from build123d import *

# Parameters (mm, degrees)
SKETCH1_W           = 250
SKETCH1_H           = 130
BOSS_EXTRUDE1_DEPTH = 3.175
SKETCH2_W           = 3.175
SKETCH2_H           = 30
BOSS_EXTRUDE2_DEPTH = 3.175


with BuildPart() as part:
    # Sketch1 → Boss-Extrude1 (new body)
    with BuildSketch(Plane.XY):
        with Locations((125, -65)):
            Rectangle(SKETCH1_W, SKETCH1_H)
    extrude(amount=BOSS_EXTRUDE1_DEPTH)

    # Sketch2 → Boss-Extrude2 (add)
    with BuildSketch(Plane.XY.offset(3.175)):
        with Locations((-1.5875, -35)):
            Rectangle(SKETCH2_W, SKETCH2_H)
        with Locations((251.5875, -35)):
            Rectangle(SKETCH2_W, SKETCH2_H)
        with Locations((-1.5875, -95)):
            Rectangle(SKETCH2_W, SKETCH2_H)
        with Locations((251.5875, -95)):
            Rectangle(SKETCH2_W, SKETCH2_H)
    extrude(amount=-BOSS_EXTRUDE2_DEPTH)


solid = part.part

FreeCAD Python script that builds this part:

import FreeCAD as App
import Part
import Sketcher
Q = App.Units.Quantity

doc = App.newDocument("Part")
params = doc.addObject("Spreadsheet::Sheet", "Params")
for row, (alias, value) in enumerate([
    ("sketch1_width", "250 mm"),
    ("sketch1_height", "130 mm"),
    ("pad1_length", "3.175 mm"),
    ("sketch2_height", "30 mm"),
    ("pad2_length", "3.175 mm"),
], start=1):
    params.set(f"A{row}", alias)
    params.set(f"B{row}", "=" + value)
    params.setAlias(f"B{row}", alias)

body = doc.addObject("PartDesign::Body", "Body")

sketch1 = body.newObject("Sketcher::SketchObject", "Sketch")
sketch1.AttachmentSupport = (doc.getObject("XY_Plane"), [""])
sketch1.MapMode = "FlatFace"
sketch1.addGeometry([
    Part.LineSegment(App.Vector(0, 0, 0), App.Vector(0, -130, 0)),
    Part.LineSegment(App.Vector(0, -130, 0), App.Vector(250, -130, 0)),
    Part.LineSegment(App.Vector(250, -130, 0), App.Vector(250, 0, 0)),
    Part.LineSegment(App.Vector(250, 0, 0), App.Vector(0, 0, 0)),
], False)
sketch1.addConstraint([
    Sketcher.Constraint("Coincident", 0, 2, 1, 1),
    Sketcher.Constraint("Coincident", 1, 2, 2, 1),
    Sketcher.Constraint("Coincident", 2, 2, 3, 1),
    Sketcher.Constraint("Coincident", 3, 2, 0, 1),
    Sketcher.Constraint("Vertical", 0),
    Sketcher.Constraint("Horizontal", 1),
    Sketcher.Constraint("Vertical", 2),
    Sketcher.Constraint("Horizontal", 3),
    Sketcher.Constraint("Coincident", 3, 2, -1, 1),
    Sketcher.Constraint("DistanceX", 1, 1, 1, 2, Q("250 mm")),
    Sketcher.Constraint("DistanceY", 0, 2, 0, 1, Q("130 mm")),
])
sketch1.setExpression("Constraints[9]", "Params.sketch1_width")
sketch1.setExpression("Constraints[10]", "Params.sketch1_height")
pad1 = body.newObject("PartDesign::Pad", "Pad")
pad1.Profile = sketch1
pad1.setExpression("Length", "Params.pad1_length")

sketch2 = body.newObject("Sketcher::SketchObject", "Sketch001")
sketch2.AttachmentSupport = (doc.getObject("XY_Plane"), [""])
sketch2.MapMode = "FlatFace"
sketch2.AttachmentOffset = App.Placement(App.Vector(0, 0, 3.175), App.Rotation())
sketch2.addGeometry([
    Part.LineSegment(App.Vector(-3.2, -20, 0), App.Vector(-3.2, -50, 0)),
    Part.LineSegment(App.Vector(-3.2, -50, 0), App.Vector(0, -50, 0)),
    Part.LineSegment(App.Vector(0, -50, 0), App.Vector(0, -20, 0)),
    Part.LineSegment(App.Vector(0, -20, 0), App.Vector(-3.2, -20, 0)),
    Part.LineSegment(App.Vector(250, -20, 0), App.Vector(250, -50, 0)),
    Part.LineSegment(App.Vector(250, -50, 0), App.Vector(253.2, -50, 0)),
    Part.LineSegment(App.Vector(253.2, -50, 0), App.Vector(253.2, -20, 0)),
    Part.LineSegment(App.Vector(253.2, -20, 0), App.Vector(250, -20, 0)),
    Part.LineSegment(App.Vector(-3.2, -80, 0), App.Vector(-3.2, -110, 0)),
    Part.LineSegment(App.Vector(-3.2, -110, 0), App.Vector(0, -110, 0)),
    Part.LineSegment(App.Vector(0, -110, 0), App.Vector(0, -80, 0)),
    Part.LineSegment(App.Vector(0, -80, 0), App.Vector(-3.2, -80, 0)),
    Part.LineSegment(App.Vector(250, -80, 0), App.Vector(250, -110, 0)),
    Part.LineSegment(App.Vector(250, -110, 0), App.Vector(253.2, -110, 0)),
    Part.LineSegment(App.Vector(253.2, -110, 0), App.Vector(253.2, -80, 0)),
    Part.LineSegment(App.Vector(253.2, -80, 0), App.Vector(250, -80, 0)),
], False)
sketch2.addConstraint([
    Sketcher.Constraint("Coincident", 0, 2, 1, 1),
    Sketcher.Constraint("Coincident", 1, 2, 2, 1),
    Sketcher.Constraint("Coincident", 2, 2, 3, 1),
    Sketcher.Constraint("Coincident", 3, 2, 0, 1),
    Sketcher.Constraint("Coincident", 4, 2, 5, 1),
    Sketcher.Constraint("Coincident", 5, 2, 6, 1),
    Sketcher.Constraint("Coincident", 6, 2, 7, 1),
    Sketcher.Constraint("Coincident", 7, 2, 4, 1),
    Sketcher.Constraint("Coincident", 8, 2, 9, 1),
    Sketcher.Constraint("Coincident", 9, 2, 10, 1),
    Sketcher.Constraint("Coincident", 10, 2, 11, 1),
    Sketcher.Constraint("Coincident", 11, 2, 8, 1),
    Sketcher.Constraint("Coincident", 12, 2, 13, 1),
    Sketcher.Constraint("Coincident", 13, 2, 14, 1),
    Sketcher.Constraint("Coincident", 14, 2, 15, 1),
    Sketcher.Constraint("Coincident", 15, 2, 12, 1),
    Sketcher.Constraint("Vertical", 0),
    Sketcher.Constraint("Horizontal", 1),
    Sketcher.Constraint("Vertical", 2),
    Sketcher.Constraint("Horizontal", 3),
    Sketcher.Constraint("Vertical", 4),
    Sketcher.Constraint("Horizontal", 5),
    Sketcher.Constraint("Vertical", 6),
    Sketcher.Constraint("Horizontal", 7),
    Sketcher.Constraint("Vertical", 8),
    Sketcher.Constraint("Horizontal", 9),
    Sketcher.Constraint("Vertical", 10),
    Sketcher.Constraint("Horizontal", 11),
    Sketcher.Constraint("Vertical", 12),
    Sketcher.Constraint("Horizontal", 13),
    Sketcher.Constraint("Vertical", 14),
    Sketcher.Constraint("Horizontal", 15),
    Sketcher.Constraint("PointOnObject", 1, 2, -2),
    Sketcher.Constraint("PointOnObject", 9, 2, -2),
    Sketcher.Constraint("Horizontal", 1, 2, 4, 2),
    Sketcher.Constraint("Horizontal", 3, 2, 6, 2),
    Sketcher.Constraint("Horizontal", 9, 2, 12, 2),
    Sketcher.Constraint("Horizontal", 11, 2, 14, 2),
    Sketcher.Constraint("Vertical", 3, 2, 8, 2),
    Sketcher.Constraint("Vertical", 7, 2, 12, 2),
    Sketcher.Constraint("Vertical", 6, 2, 13, 2),
    Sketcher.Constraint("Equal", 3, 5),
    Sketcher.Constraint("Equal", 6, 8),
    Sketcher.Constraint("DistanceY", 0, 2, 0, 1, Q("30 mm")),
    Sketcher.Constraint("DistanceY", 0, 2, -1, 1, Q("50 mm")),
    Sketcher.Constraint("DistanceX", -1, 1, 4, 2, Q("250 mm")),
    Sketcher.Constraint("DistanceY", 8, 2, -1, 1, Q("110 mm")),
    Sketcher.Constraint("DistanceX", 1, 1, 1, 2, Q("3.175 mm")),
])
sketch2.setExpression("Constraints[43]", "Params.sketch2_height")
pad2 = body.newObject("PartDesign::Pad", "Pad001")
pad2.Profile = sketch2
pad2.setExpression("Length", "Params.pad2_length")
pad2.Reversed = True

doc.recompute()
